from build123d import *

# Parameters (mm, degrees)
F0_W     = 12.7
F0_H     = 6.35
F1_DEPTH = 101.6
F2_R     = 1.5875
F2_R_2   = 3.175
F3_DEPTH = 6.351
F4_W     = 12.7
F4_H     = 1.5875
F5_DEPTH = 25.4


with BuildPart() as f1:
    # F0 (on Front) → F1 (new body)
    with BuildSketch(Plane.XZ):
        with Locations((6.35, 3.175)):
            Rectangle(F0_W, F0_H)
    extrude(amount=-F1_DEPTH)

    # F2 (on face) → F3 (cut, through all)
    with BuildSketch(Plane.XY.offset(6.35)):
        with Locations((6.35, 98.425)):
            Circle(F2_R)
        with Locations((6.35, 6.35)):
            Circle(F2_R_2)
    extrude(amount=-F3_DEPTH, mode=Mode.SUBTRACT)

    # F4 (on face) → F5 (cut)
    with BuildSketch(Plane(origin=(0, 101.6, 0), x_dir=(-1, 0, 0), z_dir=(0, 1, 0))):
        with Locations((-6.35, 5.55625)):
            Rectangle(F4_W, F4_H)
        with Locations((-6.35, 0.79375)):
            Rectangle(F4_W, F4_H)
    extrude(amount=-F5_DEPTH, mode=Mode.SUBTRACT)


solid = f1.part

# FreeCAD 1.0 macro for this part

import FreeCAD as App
import Part
import Sketcher
Q = App.Units.Quantity

doc = App.newDocument("Part")
body = doc.addObject("PartDesign::Body", "Body")

sketch1 = doc.addObject("Sketcher::SketchObject", "Sketch")
body.addObject(sketch1)
sketch1.AttachmentSupport = (doc.XZ_Plane, [""])
sketch1.MapMode = "FlatFace"
sketch1.addGeometry(Part.LineSegment(App.Vector(0, 6.35, 0), App.Vector(0, 0, 0)), False)
sketch1.addGeometry(Part.LineSegment(App.Vector(0, 0, 0), App.Vector(12.7, 0, 0)), False)
sketch1.addGeometry(Part.LineSegment(App.Vector(12.7, 0, 0), App.Vector(12.7, 6.35, 0)), False)
sketch1.addGeometry(Part.LineSegment(App.Vector(12.7, 6.35, 0), App.Vector(0, 6.35, 0)), False)
sketch1.addConstraint(Sketcher.Constraint("Coincident", 0, 2, 1, 1))
sketch1.addConstraint(Sketcher.Constraint("Coincident", 1, 2, 2, 1))
sketch1.addConstraint(Sketcher.Constraint("Coincident", 2, 2, 3, 1))
sketch1.addConstraint(Sketcher.Constraint("Coincident", 3, 2, 0, 1))
sketch1.addConstraint(Sketcher.Constraint("Vertical", 0))
sketch1.addConstraint(Sketcher.Constraint("Horizontal", 1))
sketch1.addConstraint(Sketcher.Constraint("Vertical", 2))
sketch1.addConstraint(Sketcher.Constraint("Horizontal", 3))
sketch1.addConstraint(Sketcher.Constraint("Coincident", 0, 2, -1, 1))
sketch1.addConstraint(Sketcher.Constraint("DistanceX", 1, 1, 1, 2, Q("0.5 in")))
sketch1.addConstraint(Sketcher.Constraint("DistanceY", 0, 2, 0, 1, Q("0.25 in")))
pad1 = doc.addObject("PartDesign::Pad", "Pad")
body.addObject(pad1)
pad1.Profile = sketch1
pad1.Length = Q("4 in")
pad1.Reversed = True

sketch2 = doc.addObject("Sketcher::SketchObject", "Sketch001")
body.addObject(sketch2)
sketch2.AttachmentSupport = (doc.XY_Plane, [""])
sketch2.MapMode = "FlatFace"
sketch2.AttachmentOffset = App.Placement(App.Vector(0, 0, 0.25 * 25.4), App.Rotation())
sketch2.addGeometry(Part.Circle(App.Vector(6.35, 98.425, 0), App.Vector(0, 0, 1), 1.5875), False)
sketch2.addGeometry(Part.Circle(App.Vector(6.35, 6.35, 0), App.Vector(0, 0, 1), 3.175), False)
sketch2.addConstraint(Sketcher.Constraint("Vertical", 0, 3, 1, 3))
sketch2.addConstraint(Sketcher.Constraint("Diameter", 1, Q("0.25 in")))
sketch2.addConstraint(Sketcher.Constraint("Diameter", 0, Q("0.125 in")))
sketch2.addConstraint(Sketcher.Constraint("DistanceX", -1, 1, 0, 3, Q("0.25 in")))
sketch2.addConstraint(Sketcher.Constraint("DistanceY", -1, 1, 1, 3, Q("0.25 in")))
sketch2.addConstraint(Sketcher.Constraint("DistanceY", -1, 1, 0, 3, Q("3.875 in")))
pocket1 = doc.addObject("PartDesign::Pocket", "Pocket")
body.addObject(pocket1)
pocket1.Profile = sketch2
pocket1.Type = "ThroughAll"

sketch3 = doc.addObject("Sketcher::SketchObject", "Sketch002")
body.addObject(sketch3)
sketch3.AttachmentSupport = (doc.XZ_Plane, [""])
sketch3.MapMode = "FlatFace"
sketch3.AttachmentOffset = App.Placement(App.Vector(0, 0, -4 * 25.4), App.Rotation())
sketch3.addGeometry(Part.LineSegment(App.Vector(12.7, 6.35, 0), App.Vector(12.7, 4.7625, 0)), False)
sketch3.addGeometry(Part.LineSegment(App.Vector(12.7, 4.7625, 0), App.Vector(0, 4.7625, 0)), False)
sketch3.addGeometry(Part.LineSegment(App.Vector(0, 4.7625, 0), App.Vector(0, 6.35, 0)), False)
sketch3.addGeometry(Part.LineSegment(App.Vector(0, 6.35, 0), App.Vector(12.7, 6.35, 0)), False)
sketch3.addGeometry(Part.LineSegment(App.Vector(12.7, 1.5875, 0), App.Vector(12.7, 0, 0)), False)
sketch3.addGeometry(Part.LineSegment(App.Vector(12.7, 0, 0), App.Vector(0, 0, 0)), False)
sketch3.addGeometry(Part.LineSegment(App.Vector(0, 0, 0), App.Vector(0, 1.5875, 0)), False)
sketch3.addGeometry(Part.LineSegment(App.Vector(0, 1.5875, 0), App.Vector(12.7, 1.5875, 0)), False)
sketch3.addConstraint(Sketcher.Constraint("Coincident", 0, 2, 1, 1))
sketch3.addConstraint(Sketcher.Constraint("Coincident", 1, 2, 2, 1))
sketch3.addConstraint(Sketcher.Constraint("Coincident", 2, 2, 3, 1))
sketch3.addConstraint(Sketcher.Constraint("Coincident", 3, 2, 0, 1))
sketch3.addConstraint(Sketcher.Constraint("Coincident", 4, 2, 5, 1))
sketch3.addConstraint(Sketcher.Constraint("Coincident", 5, 2, 6, 1))
sketch3.addConstraint(Sketcher.Constraint("Coincident", 6, 2, 7, 1))
sketch3.addConstraint(Sketcher.Constraint("Coincident", 7, 2, 4, 1))
sketch3.addConstraint(Sketcher.Constraint("Vertical", 0))
sketch3.addConstraint(Sketcher.Constraint("Horizontal", 1))
sketch3.addConstraint(Sketcher.Constraint("Vertical", 2))
sketch3.addConstraint(Sketcher.Constraint("Horizontal", 3))
sketch3.addConstraint(Sketcher.Constraint("Vertical", 4))
sketch3.addConstraint(Sketcher.Constraint("Horizontal", 5))
sketch3.addConstraint(Sketcher.Constraint("Vertical", 6))
sketch3.addConstraint(Sketcher.Constraint("Horizontal", 7))
sketch3.addConstraint(Sketcher.Constraint("Coincident", 5, 2, -1, 1))
sketch3.addConstraint(Sketcher.Constraint("PointOnObject", 1, 2, -2))
sketch3.addConstraint(Sketcher.Constraint("Vertical", 3, 2, 4, 2))
sketch3.addConstraint(Sketcher.Constraint("Equal", 2, 4))
sketch3.addConstraint(Sketcher.Constraint("DistanceX", 1, 2, 1, 1, Q("0.5 in")))
sketch3.addConstraint(Sketcher.Constraint("DistanceY", 0, 2, 0, 1, Q("0.0625 in")))
sketch3.addConstraint(Sketcher.Constraint("DistanceY", -1, 1, 2, 2, Q("0.25 in")))
pocket2 = doc.addObject("PartDesign::Pocket", "Pocket001")
body.addObject(pocket2)
pocket2.Profile = sketch3
pocket2.Length = Q("1 in")
pocket2.Reversed = True

doc.recompute()
